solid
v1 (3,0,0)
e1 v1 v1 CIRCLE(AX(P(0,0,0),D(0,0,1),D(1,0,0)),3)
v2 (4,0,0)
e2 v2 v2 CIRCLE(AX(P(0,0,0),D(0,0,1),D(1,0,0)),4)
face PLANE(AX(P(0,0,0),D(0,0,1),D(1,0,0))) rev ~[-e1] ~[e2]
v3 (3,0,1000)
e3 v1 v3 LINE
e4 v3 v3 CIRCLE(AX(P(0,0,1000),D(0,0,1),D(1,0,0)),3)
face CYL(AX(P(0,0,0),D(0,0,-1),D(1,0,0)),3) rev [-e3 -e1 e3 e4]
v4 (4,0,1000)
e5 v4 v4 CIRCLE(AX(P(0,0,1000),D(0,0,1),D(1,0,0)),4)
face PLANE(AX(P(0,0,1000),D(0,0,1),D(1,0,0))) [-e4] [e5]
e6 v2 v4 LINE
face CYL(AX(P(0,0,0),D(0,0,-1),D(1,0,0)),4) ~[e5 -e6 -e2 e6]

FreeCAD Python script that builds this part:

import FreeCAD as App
import Part
import Sketcher
from FreeCAD import Vector

doc = App.newDocument("Part")
body = doc.addObject("PartDesign::Body", "Body")

# Sketch on XY plane
sketch1 = body.newObject("Sketcher::SketchObject", "Sketch")
sketch1.AttachmentSupport = (doc.getObject("XY_Plane"), [""])
sketch1.MapMode = "FlatFace"
sketch1.addGeometry([
    Part.Circle(Vector(0, 0, 0), Vector(0, 0, 1), 4),
    Part.Circle(Vector(0, 0, 0), Vector(0, 0, 1), 3),
], False)
sketch1.addConstraint([
    Sketcher.Constraint("Coincident", 0, 3, -1, 1),
    Sketcher.Constraint("Coincident", 1, 3, -1, 1),
    Sketcher.Constraint("Diameter", 0, 8.0),
    Sketcher.Constraint("Diameter", 1, 6.0),
])
pad1 = body.newObject("PartDesign::Pad", "Pad")
pad1.Profile = sketch1
pad1.Length = 1000

doc.recompute()
